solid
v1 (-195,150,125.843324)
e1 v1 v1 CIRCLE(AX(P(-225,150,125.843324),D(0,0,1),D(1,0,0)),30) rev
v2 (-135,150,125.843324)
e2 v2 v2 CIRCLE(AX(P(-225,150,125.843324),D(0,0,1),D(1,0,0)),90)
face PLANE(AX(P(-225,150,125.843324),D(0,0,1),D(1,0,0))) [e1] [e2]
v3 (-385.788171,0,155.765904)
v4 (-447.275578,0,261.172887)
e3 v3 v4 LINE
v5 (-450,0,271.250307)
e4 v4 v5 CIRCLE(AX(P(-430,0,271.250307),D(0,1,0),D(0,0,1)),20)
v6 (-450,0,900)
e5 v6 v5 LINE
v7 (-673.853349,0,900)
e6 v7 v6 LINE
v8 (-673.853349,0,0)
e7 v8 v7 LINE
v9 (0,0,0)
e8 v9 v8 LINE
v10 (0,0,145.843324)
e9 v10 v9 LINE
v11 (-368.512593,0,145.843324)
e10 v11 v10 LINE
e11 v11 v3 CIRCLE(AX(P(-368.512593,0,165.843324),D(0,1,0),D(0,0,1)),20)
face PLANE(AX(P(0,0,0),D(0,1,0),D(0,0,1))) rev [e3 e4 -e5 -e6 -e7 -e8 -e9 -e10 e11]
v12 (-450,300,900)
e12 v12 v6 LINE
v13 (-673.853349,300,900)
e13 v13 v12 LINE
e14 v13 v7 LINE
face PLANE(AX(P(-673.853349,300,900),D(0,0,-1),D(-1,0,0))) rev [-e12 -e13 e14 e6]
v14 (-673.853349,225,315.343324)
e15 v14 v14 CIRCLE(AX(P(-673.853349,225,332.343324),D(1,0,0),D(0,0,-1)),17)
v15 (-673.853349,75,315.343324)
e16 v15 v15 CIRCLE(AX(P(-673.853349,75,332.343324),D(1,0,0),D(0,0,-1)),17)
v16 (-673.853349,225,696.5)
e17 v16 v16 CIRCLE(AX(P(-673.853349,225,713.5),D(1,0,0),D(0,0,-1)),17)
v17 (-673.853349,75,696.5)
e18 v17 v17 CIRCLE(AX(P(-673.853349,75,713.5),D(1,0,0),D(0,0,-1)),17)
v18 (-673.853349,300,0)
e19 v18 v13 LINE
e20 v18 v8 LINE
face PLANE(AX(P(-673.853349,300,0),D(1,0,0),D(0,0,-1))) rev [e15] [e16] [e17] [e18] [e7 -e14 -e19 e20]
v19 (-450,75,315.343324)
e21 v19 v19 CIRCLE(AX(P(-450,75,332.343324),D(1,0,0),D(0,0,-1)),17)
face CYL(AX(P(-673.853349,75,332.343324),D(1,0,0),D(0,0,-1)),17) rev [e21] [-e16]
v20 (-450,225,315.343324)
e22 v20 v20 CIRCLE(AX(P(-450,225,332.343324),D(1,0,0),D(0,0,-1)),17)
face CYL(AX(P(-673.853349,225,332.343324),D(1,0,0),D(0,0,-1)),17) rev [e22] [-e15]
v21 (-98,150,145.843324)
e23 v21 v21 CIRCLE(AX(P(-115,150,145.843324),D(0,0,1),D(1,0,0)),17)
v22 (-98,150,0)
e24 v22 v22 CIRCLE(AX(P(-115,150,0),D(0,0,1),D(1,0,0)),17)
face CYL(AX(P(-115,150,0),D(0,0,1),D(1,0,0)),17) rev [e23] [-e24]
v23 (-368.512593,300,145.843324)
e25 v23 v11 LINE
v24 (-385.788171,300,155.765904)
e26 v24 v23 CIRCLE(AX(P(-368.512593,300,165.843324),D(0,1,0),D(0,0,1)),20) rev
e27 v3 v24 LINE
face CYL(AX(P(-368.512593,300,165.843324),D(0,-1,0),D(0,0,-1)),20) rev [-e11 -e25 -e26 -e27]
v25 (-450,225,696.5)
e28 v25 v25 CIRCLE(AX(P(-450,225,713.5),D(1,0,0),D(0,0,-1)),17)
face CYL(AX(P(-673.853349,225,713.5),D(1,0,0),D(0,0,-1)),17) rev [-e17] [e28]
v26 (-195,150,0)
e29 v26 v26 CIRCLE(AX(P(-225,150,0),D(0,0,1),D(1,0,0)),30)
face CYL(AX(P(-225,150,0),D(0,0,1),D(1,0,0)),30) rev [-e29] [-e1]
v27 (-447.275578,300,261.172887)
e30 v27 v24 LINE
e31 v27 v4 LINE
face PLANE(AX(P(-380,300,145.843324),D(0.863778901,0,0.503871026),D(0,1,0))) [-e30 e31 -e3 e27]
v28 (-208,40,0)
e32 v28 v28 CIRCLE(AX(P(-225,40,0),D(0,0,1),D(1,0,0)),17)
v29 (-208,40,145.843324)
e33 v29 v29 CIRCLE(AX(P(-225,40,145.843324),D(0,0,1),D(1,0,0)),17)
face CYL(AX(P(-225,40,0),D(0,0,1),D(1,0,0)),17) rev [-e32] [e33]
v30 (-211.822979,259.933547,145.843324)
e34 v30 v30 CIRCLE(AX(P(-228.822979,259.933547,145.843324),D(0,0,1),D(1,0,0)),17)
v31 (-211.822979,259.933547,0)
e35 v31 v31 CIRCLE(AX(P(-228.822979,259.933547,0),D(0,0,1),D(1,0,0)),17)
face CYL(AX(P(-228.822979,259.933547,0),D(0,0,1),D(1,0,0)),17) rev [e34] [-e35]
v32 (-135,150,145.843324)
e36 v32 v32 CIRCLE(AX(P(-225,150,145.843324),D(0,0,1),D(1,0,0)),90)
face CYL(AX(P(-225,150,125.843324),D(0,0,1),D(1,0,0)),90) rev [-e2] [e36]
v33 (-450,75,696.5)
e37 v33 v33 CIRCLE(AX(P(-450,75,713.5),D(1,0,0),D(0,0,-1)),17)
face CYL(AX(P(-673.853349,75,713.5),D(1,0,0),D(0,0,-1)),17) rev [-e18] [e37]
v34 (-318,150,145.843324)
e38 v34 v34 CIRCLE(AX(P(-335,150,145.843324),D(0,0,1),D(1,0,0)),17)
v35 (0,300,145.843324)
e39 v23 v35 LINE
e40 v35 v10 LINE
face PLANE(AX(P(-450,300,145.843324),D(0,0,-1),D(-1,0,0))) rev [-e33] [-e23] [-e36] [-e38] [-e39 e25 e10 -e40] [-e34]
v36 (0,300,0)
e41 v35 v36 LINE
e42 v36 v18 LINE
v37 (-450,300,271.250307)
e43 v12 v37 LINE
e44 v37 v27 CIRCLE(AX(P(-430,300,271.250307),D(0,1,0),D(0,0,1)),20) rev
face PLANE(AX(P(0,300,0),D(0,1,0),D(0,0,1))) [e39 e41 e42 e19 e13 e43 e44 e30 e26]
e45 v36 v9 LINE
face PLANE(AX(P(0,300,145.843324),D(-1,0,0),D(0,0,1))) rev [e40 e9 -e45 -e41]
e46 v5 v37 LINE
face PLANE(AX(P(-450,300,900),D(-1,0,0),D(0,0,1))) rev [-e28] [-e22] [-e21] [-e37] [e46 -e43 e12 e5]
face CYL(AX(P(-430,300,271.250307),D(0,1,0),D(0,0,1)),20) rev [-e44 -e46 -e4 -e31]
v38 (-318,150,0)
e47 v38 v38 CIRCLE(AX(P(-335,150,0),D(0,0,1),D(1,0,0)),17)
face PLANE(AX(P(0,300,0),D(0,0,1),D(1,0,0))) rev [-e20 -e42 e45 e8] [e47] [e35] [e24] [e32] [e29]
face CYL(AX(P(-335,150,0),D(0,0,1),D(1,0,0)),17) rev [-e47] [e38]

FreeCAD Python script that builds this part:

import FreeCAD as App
import Part
import Sketcher


def edges_at(feature, points):
    """Names of the edges that pass closest to the given points."""
    edges = feature.Shape.Edges
    near = lambda p: min(range(len(edges)), key=lambda i: edges[i].distToShape(Part.Vertex(*p))[0])
    return sorted({f"Edge{near(p) + 1}" for p in points})

doc = App.newDocument("Part")
params = doc.addObject("Spreadsheet::Sheet", "Params")
for row, (alias, value) in enumerate([
    ("sketch1_width", "450 mm"),
    ("sketch1_height", "900 mm"),
    ("pad1_length", "300 mm"),
    ("sketch2_diameter", "34 mm"),
    ("sketch2_diameter2", "60 mm"),
    ("sketch3_diameter", "180 mm"),
    ("pocket2_length", "20 mm"),
    ("sketch4_diameter", "34 mm"),
    ("chamfer_size", "70 mm"),
    ("chamfer_size2", "120 mm"),
    ("fillet_radius", "20 mm"),
], start=1):
    params.set(f"A{row}", alias)
    params.set(f"B{row}", "=" + value)
    params.setAlias(f"B{row}", alias)

body = doc.addObject("PartDesign::Body", "Body")

sketch1 = body.newObject("Sketcher::SketchObject", "Sketch")
sketch1.AttachmentSupport = (doc.getObject("XZ_Plane"), [""])
sketch1.MapMode = "FlatFace"
sketch1.addGeometry(Part.LineSegment(App.Vector(0, 0, 0), App.Vector(-673.853349, 0, 0)), False)
sketch1.addGeometry(Part.LineSegment(App.Vector(-673.853349, 0, 0), App.Vector(-673.853349, 900, 0)), False)
sketch1.addGeometry(Part.LineSegment(App.Vector(-673.853349, 900, 0), App.Vector(-450, 900, 0)), False)
sketch1.addGeometry(Part.LineSegment(App.Vector(-450, 900, 0), App.Vector(-450, 145.843324, 0)), False)
sketch1.addGeometry(Part.LineSegment(App.Vector(-450, 145.843324, 0), App.Vector(0, 145.843324, 0)), False)
sketch1.addGeometry(Part.LineSegment(App.Vector(0, 145.843324, 0), App.Vector(0, 0, 0)), False)
sketch1.addConstraint(Sketcher.Constraint("Coincident", 0, 2, 1, 1))
sketch1.addConstraint(Sketcher.Constraint("Coincident", 1, 2, 2, 1))
sketch1.addConstraint(Sketcher.Constraint("Coincident", 2, 2, 3, 1))
sketch1.addConstraint(Sketcher.Constraint("Coincident", 3, 2, 4, 1))
sketch1.addConstraint(Sketcher.Constraint("Coincident", 4, 2, 5, 1))
sketch1.addConstraint(Sketcher.Constraint("Coincident", 5, 2, 0, 1))
sketch1.addConstraint(Sketcher.Constraint("Horizontal", 0))
sketch1.addConstraint(Sketcher.Constraint("Vertical", 1))
sketch1.addConstraint(Sketcher.Constraint("Horizontal", 2))
sketch1.addConstraint(Sketcher.Constraint("Vertical", 3))
sketch1.addConstraint(Sketcher.Constraint("Horizontal", 4))
sketch1.addConstraint(Sketcher.Constraint("Vertical", 5))
sketch1.addConstraint(Sketcher.Constraint("Coincident", 5, 2, -1, 1))
sketch1.addConstraint(Sketcher.Constraint("DistanceX", 4, 1, 4, 2, 450.0))
sketch1.addConstraint(Sketcher.Constraint("DistanceY", 1, 1, 1, 2, 900.0))
sketch1.addConstraint(Sketcher.Constraint("DistanceX", 0, 2, 0, 1, 673.853349))
sketch1.addConstraint(Sketcher.Constraint("DistanceY", 3, 2, 3, 1, 754.156676))
sketch1.setExpression("Constraints[13]", "Params.sketch1_width")
sketch1.setExpression("Constraints[14]", "Params.sketch1_height")
pad1 = body.newObject("PartDesign::Pad", "Pad")
pad1.Profile = sketch1
pad1.setExpression("Length", "Params.pad1_length")
pad1.Reversed = True

sketch2 = body.newObject("Sketcher::SketchObject", "Sketch001")
sketch2.AttachmentSupport = (doc.getObject("XY_Plane"), [""])
sketch2.MapMode = "FlatFace"
sketch2.AttachmentOffset = App.Placement(App.Vector(0, 0, 145.843324), App.Rotation())
sketch2.addGeometry(Part.Circle(App.Vector(-335, 150, 0), App.Vector(0, 0, 1), 17), False)
sketch2.addGeometry(Part.Circle(App.Vector(-228.822979, 259.933547, 0), App.Vector(0, 0, 1), 17), False)
sketch2.addGeometry(Part.Circle(App.Vector(-115, 150, 0), App.Vector(0, 0, 1), 17), False)
sketch2.addGeometry(Part.Circle(App.Vector(-225, 40, 0), App.Vector(0, 0, 1), 17), False)
sketch2.addGeometry(Part.Circle(App.Vector(-225, 150, 0), App.Vector(0, 0, 1), 30), False)
sketch2.addConstraint(Sketcher.Constraint("Equal", 0, 1))
sketch2.addConstraint(Sketcher.Constraint("Equal", 1, 2))
sketch2.addConstraint(Sketcher.Constraint("Equal", 2, 3))
sketch2.addConstraint(Sketcher.Constraint("Horizontal", 0, 3, 2, 3))
sketch2.addConstraint(Sketcher.Constraint("Horizontal", 2, 3, 4, 3))
sketch2.addConstraint(Sketcher.Constraint("Vertical", 3, 3, 4, 3))
sketch2.addConstraint(Sketcher.Constraint("Diameter", 0, 34.0))
sketch2.addConstraint(Sketcher.Constraint("Diameter", 4, 60.0))
sketch2.addConstraint(Sketcher.Constraint("DistanceX", 0, 3, -1, 1, 335.0))
sketch2.addConstraint(Sketcher.Constraint("DistanceY", -1, 1, 0, 3, 150.0))
sketch2.addConstraint(Sketcher.Constraint("DistanceX", 2, 3, -1, 1, 115.0))
sketch2.addConstraint(Sketcher.Constraint("DistanceX", 3, 3, -1, 1, 225.0))
sketch2.addConstraint(Sketcher.Constraint("DistanceY", -1, 1, 3, 3, 40.0))
sketch2.addConstraint(Sketcher.Constraint("DistanceX", 1, 3, -1, 1, 228.822979))
sketch2.addConstraint(Sketcher.Constraint("DistanceY", -1, 1, 1, 3, 259.933547))
sketch2.setExpression("Constraints[6]", "Params.sketch2_diameter")
sketch2.setExpression("Constraints[7]", "Params.sketch2_diameter2")
pocket1 = body.newObject("PartDesign::Pocket", "Pocket")
pocket1.Profile = sketch2
pocket1.Type = "ThroughAll"

sketch3 = body.newObject("Sketcher::SketchObject", "Sketch002")
sketch3.AttachmentSupport = (doc.getObject("XY_Plane"), [""])
sketch3.MapMode = "FlatFace"
sketch3.AttachmentOffset = App.Placement(App.Vector(0, 0, 145.843324), App.Rotation())
sketch3.addGeometry(Part.Circle(App.Vector(-225, 150, 0), App.Vector(0, 0, 1), 90), False)
sketch3.addConstraint(Sketcher.Constraint("Diameter", 0, 180.0))
sketch3.addConstraint(Sketcher.Constraint("DistanceX", 0, 3, -1, 1, 225.0))
sketch3.addConstraint(Sketcher.Constraint("DistanceY", -1, 1, 0, 3, 150.0))
sketch3.setExpression("Constraints[0]", "Params.sketch3_diameter")
pocket2 = body.newObject("PartDesign::Pocket", "Pocket001")
pocket2.Profile = sketch3
pocket2.setExpression("Length", "Params.pocket2_length")

sketch4 = body.newObject("Sketcher::SketchObject", "Sketch003")
sketch4.AttachmentSupport = (doc.getObject("YZ_Plane"), [""])
sketch4.MapMode = "FlatFace"
sketch4.AttachmentOffset = App.Placement(App.Vector(0, 0, -450), App.Rotation())
sketch4.addGeometry(Part.Circle(App.Vector(75, 713.5, 0), App.Vector(0, 0, 1), 17), False)
sketch4.addGeometry(Part.Circle(App.Vector(225, 713.5, 0), App.Vector(0, 0, 1), 17), False)
sketch4.addGeometry(Part.Circle(App.Vector(75, 332.343324, 0), App.Vector(0, 0, 1), 17), False)
sketch4.addGeometry(Part.Circle(App.Vector(225, 332.343324, 0), App.Vector(0, 0, 1), 17), False)
sketch4.addConstraint(Sketcher.Constraint("Equal", 0, 1))
sketch4.addConstraint(Sketcher.Constraint("Equal", 1, 2))
sketch4.addConstraint(Sketcher.Constraint("Equal", 2, 3))
sketch4.addConstraint(Sketcher.Constraint("Horizontal", 0, 3, 1, 3))
sketch4.addConstraint(Sketcher.Constraint("Horizontal", 2, 3, 3, 3))
sketch4.addConstraint(Sketcher.Constraint("Vertical", 0, 3, 2, 3))
sketch4.addConstraint(Sketcher.Constraint("Vertical", 1, 3, 3, 3))
sketch4.addConstraint(Sketcher.Constraint("Diameter", 0, 34.0))
sketch4.addConstraint(Sketcher.Constraint("DistanceX", -1, 1, 0, 3, 75.0))
sketch4.addConstraint(Sketcher.Constraint("DistanceX", -1, 1, 1, 3, 225.0))
sketch4.addConstraint(Sketcher.Constraint("DistanceY", -1, 1, 0, 3, 713.5))
sketch4.addConstraint(Sketcher.Constraint("DistanceY", -1, 1, 2, 3, 332.343324))
sketch4.setExpression("Constraints[7]", "Params.sketch4_diameter")
pocket3 = body.newObject("PartDesign::Pocket", "Pocket002")
pocket3.Profile = sketch4
pocket3.Type = "ThroughAll"
doc.recompute()

chamfer = body.newObject("PartDesign::Chamfer", "Chamfer")
chamfer.Base = (pocket3, edges_at(pocket3, [(-450, 150, 145.843)]))
chamfer.ChamferType = "Two distances"
chamfer.setExpression("Size", "Params.chamfer_size")
chamfer.setExpression("Size2", "Params.chamfer_size2")
doc.recompute()

fillet = body.newObject("PartDesign::Fillet", "Fillet")
fillet.Base = (chamfer, edges_at(chamfer, [(-380, 150, 145.843), (-450, 150, 265.843)]))
fillet.setExpression("Radius", "Params.fillet_radius")

doc.recompute()
